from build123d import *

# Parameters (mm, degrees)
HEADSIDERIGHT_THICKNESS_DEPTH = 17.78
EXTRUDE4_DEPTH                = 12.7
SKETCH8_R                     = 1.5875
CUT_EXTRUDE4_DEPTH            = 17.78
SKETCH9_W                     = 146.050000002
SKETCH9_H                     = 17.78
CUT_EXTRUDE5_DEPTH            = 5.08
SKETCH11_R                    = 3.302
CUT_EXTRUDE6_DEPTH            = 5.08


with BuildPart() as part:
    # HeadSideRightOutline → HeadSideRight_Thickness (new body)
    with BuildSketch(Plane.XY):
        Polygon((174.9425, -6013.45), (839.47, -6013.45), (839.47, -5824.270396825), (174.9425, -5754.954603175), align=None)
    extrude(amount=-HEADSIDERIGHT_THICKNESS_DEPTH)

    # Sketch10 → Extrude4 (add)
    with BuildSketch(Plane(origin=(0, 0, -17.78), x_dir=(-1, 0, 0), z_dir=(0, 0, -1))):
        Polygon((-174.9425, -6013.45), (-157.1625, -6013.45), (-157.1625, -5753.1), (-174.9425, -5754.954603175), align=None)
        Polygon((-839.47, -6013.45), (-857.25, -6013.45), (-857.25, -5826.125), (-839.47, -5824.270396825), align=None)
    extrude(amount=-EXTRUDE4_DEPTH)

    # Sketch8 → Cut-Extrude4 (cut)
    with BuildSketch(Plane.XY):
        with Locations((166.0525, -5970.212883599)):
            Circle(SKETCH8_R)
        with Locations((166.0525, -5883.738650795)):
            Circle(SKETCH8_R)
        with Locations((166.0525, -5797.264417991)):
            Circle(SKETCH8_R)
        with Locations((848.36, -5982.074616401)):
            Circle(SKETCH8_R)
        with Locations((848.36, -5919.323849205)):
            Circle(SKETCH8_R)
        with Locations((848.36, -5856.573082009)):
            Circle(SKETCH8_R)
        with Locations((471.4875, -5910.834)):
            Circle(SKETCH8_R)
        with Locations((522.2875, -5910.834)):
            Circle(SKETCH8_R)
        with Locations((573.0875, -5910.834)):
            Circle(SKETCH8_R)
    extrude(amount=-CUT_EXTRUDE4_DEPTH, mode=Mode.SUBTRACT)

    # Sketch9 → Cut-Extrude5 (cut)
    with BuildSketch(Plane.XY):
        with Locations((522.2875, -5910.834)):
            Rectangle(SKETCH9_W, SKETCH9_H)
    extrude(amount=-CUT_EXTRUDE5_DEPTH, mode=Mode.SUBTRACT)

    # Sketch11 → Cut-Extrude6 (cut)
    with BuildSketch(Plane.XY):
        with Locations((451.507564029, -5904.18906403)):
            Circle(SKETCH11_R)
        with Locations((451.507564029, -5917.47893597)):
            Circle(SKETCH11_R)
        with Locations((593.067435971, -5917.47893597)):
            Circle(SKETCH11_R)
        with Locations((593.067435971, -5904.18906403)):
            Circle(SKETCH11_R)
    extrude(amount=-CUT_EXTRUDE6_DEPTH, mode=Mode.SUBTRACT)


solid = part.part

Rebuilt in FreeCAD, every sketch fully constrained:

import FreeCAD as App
import Part
import Sketcher

V = App.Vector
Q = App.Units.Quantity

doc = App.newDocument("Part")
body = doc.addObject("PartDesign::Body", "Body")

sketch1 = body.newObject("Sketcher::SketchObject", "Sketch")
sketch1.AttachmentSupport = (doc.getObject("XY_Plane"), [""])
sketch1.MapMode = "FlatFace"
sketch1.addGeometry(Part.LineSegment(V(174.9425, -6013.45, 0), V(839.47, -6013.45, 0)), False)
sketch1.addGeometry(Part.LineSegment(V(839.47, -6013.45, 0), V(839.47, -5824.270397, 0)), False)
sketch1.addGeometry(Part.LineSegment(V(839.47, -5824.270397, 0), V(174.9425, -5754.954603, 0)), False)
sketch1.addGeometry(Part.LineSegment(V(174.9425, -5754.954603, 0), V(174.9425, -6013.45, 0)), False)
sketch1.addConstraint(Sketcher.Constraint("Coincident", 0, 2, 1, 1))
sketch1.addConstraint(Sketcher.Constraint("Coincident", 1, 2, 2, 1))
sketch1.addConstraint(Sketcher.Constraint("Coincident", 2, 2, 3, 1))
sketch1.addConstraint(Sketcher.Constraint("Coincident", 3, 2, 0, 1))
sketch1.addConstraint(Sketcher.Constraint("Horizontal", 0))
sketch1.addConstraint(Sketcher.Constraint("Vertical", 1))
sketch1.addConstraint(Sketcher.Constraint("Vertical", 3))
sketch1.addConstraint(Sketcher.Constraint("DistanceX", -1, 1, 0, 2, Q("33.05 in")))
sketch1.addConstraint(Sketcher.Constraint("DistanceY", 0, 2, -1, 1, Q("236.75 in")))
sketch1.addConstraint(Sketcher.Constraint("DistanceX", 0, 1, 0, 2, Q("26.1625 in")))
sketch1.addConstraint(Sketcher.Constraint("Distance", 2, 668.132829))
sketch1.addConstraint(Sketcher.Constraint("DistanceY", 1, 1, 1, 2, 189.179603))
pad1 = body.newObject("PartDesign::Pad", "Pad")
pad1.Profile = sketch1
pad1.Length = Q("0.7 in")
pad1.Reversed = True

sketch2 = body.newObject("Sketcher::SketchObject", "Sketch001")
sketch2.AttachmentSupport = (doc.getObject("XY_Plane"), [""])
sketch2.MapMode = "FlatFace"
sketch2.AttachmentOffset = App.Placement(V(0, 0, -0.7 * 25.4), App.Rotation())
sketch2.addGeometry(Part.LineSegment(V(174.9425, -6013.45, 0), V(157.1625, -6013.45, 0)), False)
sketch2.addGeometry(Part.LineSegment(V(157.1625, -6013.45, 0), V(157.1625, -5753.1, 0)), False)
sketch2.addGeometry(Part.LineSegment(V(157.1625, -5753.1, 0), V(174.9425, -5754.954603, 0)), False)
sketch2.addGeometry(Part.LineSegment(V(174.9425, -5754.954603, 0), V(174.9425, -6013.45, 0)), False)
sketch2.addGeometry(Part.LineSegment(V(857.25, -6013.45, 0), V(839.47, -6013.45, 0)), False)
sketch2.addGeometry(Part.LineSegment(V(839.47, -6013.45, 0), V(839.47, -5824.270397, 0)), False)
sketch2.addGeometry(Part.LineSegment(V(839.47, -5824.270397, 0), V(857.25, -5826.125, 0)), False)
sketch2.addGeometry(Part.LineSegment(V(857.25, -5826.125, 0), V(857.25, -6013.45, 0)), False)
sketch2.addConstraint(Sketcher.Constraint("Coincident", 0, 2, 1, 1))
sketch2.addConstraint(Sketcher.Constraint("Coincident", 1, 2, 2, 1))
sketch2.addConstraint(Sketcher.Constraint("Coincident", 2, 2, 3, 1))
sketch2.addConstraint(Sketcher.Constraint("Coincident", 3, 2, 0, 1))
sketch2.addConstraint(Sketcher.Constraint("Coincident", 4, 2, 5, 1))
sketch2.addConstraint(Sketcher.Constraint("Coincident", 5, 2, 6, 1))
sketch2.addConstraint(Sketcher.Constraint("Coincident", 6, 2, 7, 1))
sketch2.addConstraint(Sketcher.Constraint("Coincident", 7, 2, 4, 1))
sketch2.addConstraint(Sketcher.Constraint("Horizontal", 0))
sketch2.addConstraint(Sketcher.Constraint("Vertical", 1))
sketch2.addConstraint(Sketcher.Constraint("Vertical", 3))
sketch2.addConstraint(Sketcher.Constraint("Horizontal", 4))
sketch2.addConstraint(Sketcher.Constraint("Vertical", 5))
sketch2.addConstraint(Sketcher.Constraint("Vertical", 7))
sketch2.addConstraint(Sketcher.Constraint("Parallel", 2, 6))
sketch2.addConstraint(Sketcher.Constraint("Horizontal", 3, 2, 4, 2))
sketch2.addConstraint(Sketcher.Constraint("Equal", 0, 4))
sketch2.addConstraint(Sketcher.Constraint("DistanceX", 0, 2, 0, 1, Q("0.7 in")))
sketch2.addConstraint(Sketcher.Constraint("DistanceY", 1, 1, 1, 2, Q("10.25 in")))
sketch2.addConstraint(Sketcher.Constraint("DistanceY", 1, 2, -1, 1, Q("226.5 in")))
sketch2.addConstraint(Sketcher.Constraint("DistanceY", 7, 2, 7, 1, Q("7.375 in")))
sketch2.addConstraint(Sketcher.Constraint("DistanceX", -1, 1, 4, 2, Q("33.05 in")))
sketch2.addConstraint(Sketcher.Constraint("DistanceX", -1, 1, 0, 2, Q("6.1875 in")))
sketch2.addConstraint(Sketcher.Constraint("DistanceY", 3, 2, 3, 1, 258.495397))
pad2 = body.newObject("PartDesign::Pad", "Pad001")
pad2.Profile = sketch2
pad2.Length = Q("0.5 in")

sketch3 = body.newObject("Sketcher::SketchObject", "Sketch002")
sketch3.AttachmentSupport = (doc.getObject("XY_Plane"), [""])
sketch3.MapMode = "FlatFace"
sketch3.addGeometry(Part.Circle(V(166.0525, -5970.212884, 0), V(0, 0, 1), 1.5875), False)
sketch3.addGeometry(Part.Circle(V(166.0525, -5883.738651, 0), V(0, 0, 1), 1.5875), False)
sketch3.addGeometry(Part.Circle(V(166.0525, -5797.264418, 0), V(0, 0, 1), 1.5875), False)
sketch3.addGeometry(Part.Circle(V(848.36, -5982.074616, 0), V(0, 0, 1), 1.5875), False)
sketch3.addGeometry(Part.Circle(V(848.36, -5919.323849, 0), V(0, 0, 1), 1.5875), False)
sketch3.addGeometry(Part.Circle(V(848.36, -5856.573082, 0), V(0, 0, 1), 1.5875), False)
sketch3.addGeometry(Part.Circle(V(471.4875, -5910.834, 0), V(0, 0, 1), 1.5875), False)
sketch3.addGeometry(Part.Circle(V(522.2875, -5910.834, 0), V(0, 0, 1), 1.5875), False)
sketch3.addGeometry(Part.Circle(V(573.0875, -5910.834, 0), V(0, 0, 1), 1.5875), False)
sketch3.addConstraint(Sketcher.Constraint("Equal", 0, 1))
sketch3.addConstraint(Sketcher.Constraint("Equal", 1, 2))
sketch3.addConstraint(Sketcher.Constraint("Equal", 2, 3))
sketch3.addConstraint(Sketcher.Constraint("Equal", 3, 4))
sketch3.addConstraint(Sketcher.Constraint("Equal", 4, 5))
sketch3.addConstraint(Sketcher.Constraint("Equal", 5, 6))
sketch3.addConstraint(Sketcher.Constraint("Equal", 6, 7))
sketch3.addConstraint(Sketcher.Constraint("Equal", 7, 8))
sketch3.addConstraint(Sketcher.Constraint("Horizontal", 6, 3, 7, 3))
sketch3.addConstraint(Sketcher.Constraint("Horizontal", 7, 3, 8, 3))
sketch3.addConstraint(Sketcher.Constraint("Vertical", 0, 3, 1, 3))
sketch3.addConstraint(Sketcher.Constraint("Vertical", 1, 3, 2, 3))
sketch3.addConstraint(Sketcher.Constraint("Vertical", 3, 3, 4, 3))
sketch3.addConstraint(Sketcher.Constraint("Vertical", 4, 3, 5, 3))
sketch3.addConstraint(Sketcher.Constraint("Diameter", 0, Q("0.125 in")))
sketch3.addConstraint(Sketcher.Constraint("DistanceX", 6, 3, 7, 3, Q("2 in")))
sketch3.addConstraint(Sketcher.Constraint("DistanceX", 7, 3, 8, 3, Q("2 in")))
sketch3.addConstraint(Sketcher.Constraint("DistanceX", -1, 1, 3, 3, Q("33.4 in")))
sketch3.addConstraint(Sketcher.Constraint("DistanceY", 6, 3, -1, 1, Q("232.71 in")))
sketch3.addConstraint(Sketcher.Constraint("DistanceX", -1, 1, 6, 3, Q("18.5625 in")))
sketch3.addConstraint(Sketcher.Constraint("DistanceX", 1, 3, 6, 3, Q("12.025 in")))
sketch3.addConstraint(Sketcher.Constraint("DistanceY", 3, 3, 2, 3, 184.810198))
sketch3.addConstraint(Sketcher.Constraint("DistanceY", 4, 3, 1, 3, 35.585198))
sketch3.addConstraint(Sketcher.Constraint("DistanceY", 0, 3, 5, 3, 113.639802))
sketch3.addConstraint(Sketcher.Constraint("DistanceY", 1, 3, -1, 1, 5883.738651))
sketch3.addConstraint(Sketcher.Constraint("DistanceY", 4, 3, 2, 3, 122.059431))
sketch3.addConstraint(Sketcher.Constraint("DistanceY", 1, 3, 5, 3, 27.165569))
pocket1 = body.newObject("PartDesign::Pocket", "Pocket")
pocket1.Profile = sketch3
pocket1.Length = Q("0.7 in")

sketch4 = body.newObject("Sketcher::SketchObject", "Sketch003")
sketch4.AttachmentSupport = (doc.getObject("XY_Plane"), [""])
sketch4.MapMode = "FlatFace"
sketch4.addGeometry(Part.LineSegment(V(449.2625, -5901.944, 0), V(449.2625, -5919.724, 0)), False)
sketch4.addGeometry(Part.LineSegment(V(449.2625, -5919.724, 0), V(595.3125, -5919.724, 0)), False)
sketch4.addGeometry(Part.LineSegment(V(595.3125, -5919.724, 0), V(595.3125, -5901.944, 0)), False)
sketch4.addGeometry(Part.LineSegment(V(595.3125, -5901.944, 0), V(449.2625, -5901.944, 0)), False)
sketch4.addConstraint(Sketcher.Constraint("Coincident", 0, 2, 1, 1))
sketch4.addConstraint(Sketcher.Constraint("Coincident", 1, 2, 2, 1))
sketch4.addConstraint(Sketcher.Constraint("Coincident", 2, 2, 3, 1))
sketch4.addConstraint(Sketcher.Constraint("Coincident", 3, 2, 0, 1))
sketch4.addConstraint(Sketcher.Constraint("Vertical", 0))
sketch4.addConstraint(Sketcher.Constraint("Horizontal", 1))
sketch4.addConstraint(Sketcher.Constraint("Vertical", 2))
sketch4.addConstraint(Sketcher.Constraint("Horizontal", 3))
sketch4.addConstraint(Sketcher.Constraint("DistanceY", 0, 2, 0, 1, Q("0.7 in")))
sketch4.addConstraint(Sketcher.Constraint("DistanceX", 1, 1, 1, 2, Q("5.75 in")))
sketch4.addConstraint(Sketcher.Constraint("DistanceY", 0, 2, -1, 1, Q("233.06 in")))
sketch4.addConstraint(Sketcher.Constraint("DistanceX", -1, 1, 0, 2, Q("17.6875 in")))
pocket2 = body.newObject("PartDesign::Pocket", "Pocket001")
pocket2.Profile = sketch4
pocket2.Length = Q("0.2 in")

sketch5 = body.newObject("Sketcher::SketchObject", "Sketch004")
sketch5.AttachmentSupport = (doc.getObject("XY_Plane"), [""])
sketch5.MapMode = "FlatFace"
sketch5.addGeometry(Part.Circle(V(451.507564, -5904.189064, 0), V(0, 0, 1), 3.302), False)
sketch5.addGeometry(Part.Circle(V(451.507564, -5917.478936, 0), V(0, 0, 1), 3.302), False)
sketch5.addGeometry(Part.Circle(V(593.067436, -5917.478936, 0), V(0, 0, 1), 3.302), False)
sketch5.addGeometry(Part.Circle(V(593.067436, -5904.189064, 0), V(0, 0, 1), 3.302), False)
sketch5.addConstraint(Sketcher.Constraint("Equal", 0, 1))
sketch5.addConstraint(Sketcher.Constraint("Equal", 1, 2))
sketch5.addConstraint(Sketcher.Constraint("Equal", 2, 3))
sketch5.addConstraint(Sketcher.Constraint("Horizontal", 1, 3, 2, 3))
sketch5.addConstraint(Sketcher.Constraint("Horizontal", 0, 3, 3, 3))
sketch5.addConstraint(Sketcher.Constraint("Vertical", 0, 3, 1, 3))
sketch5.addConstraint(Sketcher.Constraint("Vertical", 2, 3, 3, 3))
sketch5.addConstraint(Sketcher.Constraint("Diameter", 0, Q("0.26 in")))
sketch5.addConstraint(Sketcher.Constraint("DistanceY", 1, 3, 0, 3, 13.289872))
sketch5.addConstraint(Sketcher.Constraint("DistanceX", 1, 3, 2, 3, 141.559872))
sketch5.addConstraint(Sketcher.Constraint("DistanceX", -1, 1, 0, 3, 451.507564))
sketch5.addConstraint(Sketcher.Constraint("DistanceY", 0, 3, -1, 1, 5904.189064))
pocket3 = body.newObject("PartDesign::Pocket", "Pocket002")
pocket3.Profile = sketch5
pocket3.Length = Q("0.2 in")

doc.recompute()
